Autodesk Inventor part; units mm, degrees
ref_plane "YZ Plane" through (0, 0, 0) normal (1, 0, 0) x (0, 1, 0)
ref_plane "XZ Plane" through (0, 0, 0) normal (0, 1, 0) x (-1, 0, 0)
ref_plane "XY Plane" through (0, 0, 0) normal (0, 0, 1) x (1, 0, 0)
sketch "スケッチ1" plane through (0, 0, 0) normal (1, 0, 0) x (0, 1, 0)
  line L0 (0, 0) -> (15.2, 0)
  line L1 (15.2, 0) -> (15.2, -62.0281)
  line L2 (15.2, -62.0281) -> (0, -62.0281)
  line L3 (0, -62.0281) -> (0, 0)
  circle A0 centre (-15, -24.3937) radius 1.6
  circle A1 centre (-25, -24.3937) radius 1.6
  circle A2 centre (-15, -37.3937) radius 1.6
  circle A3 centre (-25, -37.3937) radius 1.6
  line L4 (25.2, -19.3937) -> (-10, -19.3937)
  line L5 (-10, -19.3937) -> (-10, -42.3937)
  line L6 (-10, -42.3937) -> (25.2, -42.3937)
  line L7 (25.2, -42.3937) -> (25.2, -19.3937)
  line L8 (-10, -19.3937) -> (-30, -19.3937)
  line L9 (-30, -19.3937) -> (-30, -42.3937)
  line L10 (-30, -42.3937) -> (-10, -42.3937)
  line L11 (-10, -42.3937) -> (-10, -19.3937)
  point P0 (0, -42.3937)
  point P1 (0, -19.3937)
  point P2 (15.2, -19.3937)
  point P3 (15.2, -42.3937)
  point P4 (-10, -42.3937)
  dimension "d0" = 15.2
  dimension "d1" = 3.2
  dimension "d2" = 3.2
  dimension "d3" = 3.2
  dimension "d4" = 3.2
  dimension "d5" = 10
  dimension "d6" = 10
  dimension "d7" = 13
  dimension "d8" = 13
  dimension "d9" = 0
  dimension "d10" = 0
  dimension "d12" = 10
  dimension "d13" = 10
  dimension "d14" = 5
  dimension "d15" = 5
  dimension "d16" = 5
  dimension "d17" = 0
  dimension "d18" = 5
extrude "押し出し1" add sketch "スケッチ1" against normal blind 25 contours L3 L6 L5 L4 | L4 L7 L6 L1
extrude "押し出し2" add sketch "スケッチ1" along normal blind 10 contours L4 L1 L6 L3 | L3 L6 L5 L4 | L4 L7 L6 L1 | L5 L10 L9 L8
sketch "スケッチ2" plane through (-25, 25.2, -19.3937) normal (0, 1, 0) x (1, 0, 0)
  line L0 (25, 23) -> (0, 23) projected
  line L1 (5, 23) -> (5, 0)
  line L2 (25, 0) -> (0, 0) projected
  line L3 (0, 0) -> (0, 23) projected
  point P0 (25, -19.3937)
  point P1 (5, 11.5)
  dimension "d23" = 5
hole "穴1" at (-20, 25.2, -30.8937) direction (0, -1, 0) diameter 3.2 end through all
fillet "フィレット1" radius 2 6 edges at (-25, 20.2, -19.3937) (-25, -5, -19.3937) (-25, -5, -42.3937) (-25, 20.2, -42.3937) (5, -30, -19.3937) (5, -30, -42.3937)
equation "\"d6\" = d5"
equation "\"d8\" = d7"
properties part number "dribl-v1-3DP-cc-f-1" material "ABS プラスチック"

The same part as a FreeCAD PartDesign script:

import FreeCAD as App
import Part
import Sketcher

V = App.Vector
Q = App.Units.Quantity


def edges_at(feature, points):
    """Names of the edges that pass closest to the given points."""
    edges = feature.Shape.Edges
    near = lambda p: min(range(len(edges)), key=lambda i: edges[i].distToShape(Part.Vertex(*p))[0])
    return sorted({f"Edge{near(p) + 1}" for p in points})

doc = App.newDocument("Part")
params = doc.addObject("Spreadsheet::Sheet", "Params")
for row, (alias, value) in enumerate([
    ("sketch1_width", "10 mm"),
    ("sketch1_height", "23 mm"),
    ("pad1_length", "25 mm"),
    ("sketch2_diameter", "3.2 mm"),
    ("sketch2_width", "55.2 mm"),
    ("pad2_length", "10 mm"),
    ("sketch3_diameter", "3.2 mm"),
    ("hole_diameter", "3.2 mm"),
    ("fillet_radius", "2 mm"),
], start=1):
    params.set(f"A{row}", alias)
    params.set(f"B{row}", "=" + value)
    params.setAlias(f"B{row}", alias)

body = doc.addObject("PartDesign::Body", "Body")
body.AllowCompound = True

# Sketch on YZ plane
sketch1 = body.newObject("Sketcher::SketchObject", "Sketch")
sketch1.AttachmentSupport = (doc.getObject("YZ_Plane"), [""])
sketch1.MapMode = "FlatFace"
sketch1.addGeometry(Part.LineSegment(V(0, -42, 0), V(0, -19, 0)), False)
sketch1.addGeometry(Part.LineSegment(V(0, -19, 0), V(-10, -19, 0)), False)
sketch1.addGeometry(Part.LineSegment(V(-10, -19, 0), V(-10, -42, 0)), False)
sketch1.addGeometry(Part.LineSegment(V(-10, -42, 0), V(0, -42, 0)), False)
sketch1.addGeometry(Part.LineSegment(V(25, -19, 0), V(15, -19, 0)), False)
sketch1.addGeometry(Part.LineSegment(V(15, -19, 0), V(15, -42, 0)), False)
sketch1.addGeometry(Part.LineSegment(V(15, -42, 0), V(25, -42, 0)), False)
sketch1.addGeometry(Part.LineSegment(V(25, -42, 0), V(25, -19, 0)), False)
sketch1.addConstraint(Sketcher.Constraint("Coincident", 0, 2, 1, 1))
sketch1.addConstraint(Sketcher.Constraint("Coincident", 1, 2, 2, 1))
sketch1.addConstraint(Sketcher.Constraint("Coincident", 2, 2, 3, 1))
sketch1.addConstraint(Sketcher.Constraint("Coincident", 3, 2, 0, 1))
sketch1.addConstraint(Sketcher.Constraint("Coincident", 4, 2, 5, 1))
sketch1.addConstraint(Sketcher.Constraint("Coincident", 5, 2, 6, 1))
sketch1.addConstraint(Sketcher.Constraint("Coincident", 6, 2, 7, 1))
sketch1.addConstraint(Sketcher.Constraint("Coincident", 7, 2, 4, 1))
sketch1.addConstraint(Sketcher.Constraint("Vertical", 0))
sketch1.addConstraint(Sketcher.Constraint("Horizontal", 1))
sketch1.addConstraint(Sketcher.Constraint("Vertical", 2))
sketch1.addConstraint(Sketcher.Constraint("Horizontal", 3))
sketch1.addConstraint(Sketcher.Constraint("Horizontal", 4))
sketch1.addConstraint(Sketcher.Constraint("Vertical", 5))
sketch1.addConstraint(Sketcher.Constraint("Horizontal", 6))
sketch1.addConstraint(Sketcher.Constraint("Vertical", 7))
sketch1.addConstraint(Sketcher.Constraint("PointOnObject", 0, 2, -2))
sketch1.addConstraint(Sketcher.Constraint("Horizontal", 1, 2, 4, 2))
sketch1.addConstraint(Sketcher.Constraint("Horizontal", 3, 2, 5, 2))
sketch1.addConstraint(Sketcher.Constraint("Equal", 3, 4))
sketch1.addConstraint(Sketcher.Constraint("DistanceX", 1, 2, 1, 1, Q("10 mm")))
sketch1.addConstraint(Sketcher.Constraint("DistanceX", -1, 1, 4, 2, Q("15.2 mm")))
sketch1.addConstraint(Sketcher.Constraint("DistanceY", 0, 1, 0, 2, Q("23 mm")))
sketch1.addConstraint(Sketcher.Constraint("DistanceY", 0, 2, -1, 1, Q("19.3937 mm")))
sketch1.setExpression("Constraints[20]", "Params.sketch1_width")
sketch1.setExpression("Constraints[22]", "Params.sketch1_height")
pad1 = body.newObject("PartDesign::Pad", "Pad")
pad1.Profile = sketch1
pad1.setExpression("Length", "Params.pad1_length")
pad1.Reversed = True

# Sketch on YZ plane
sketch2 = body.newObject("Sketcher::SketchObject", "Sketch001")
sketch2.AttachmentSupport = (doc.getObject("YZ_Plane"), [""])
sketch2.MapMode = "FlatFace"
sketch2.addGeometry(Part.LineSegment(V(-30, -19.4, 0), V(-30, -42.4, 0)), False)
sketch2.addGeometry(Part.LineSegment(V(-30, -42.4, 0), V(25.2, -42.4, 0)), False)
sketch2.addGeometry(Part.LineSegment(V(25.2, -42.4, 0), V(25.2, -19.4, 0)), False)
sketch2.addGeometry(Part.LineSegment(V(25.2, -19.4, 0), V(-30, -19.4, 0)), False)
sketch2.addGeometry(Part.Circle(V(-15, -24.4, 0), V(0, 0, 1), 1.6), False)
sketch2.addGeometry(Part.Circle(V(-25, -37.4, 0), V(0, 0, 1), 1.6), False)
sketch2.addGeometry(Part.Circle(V(-15, -37.4, 0), V(0, 0, 1), 1.6), False)
sketch2.addGeometry(Part.Circle(V(-25, -24.4, 0), V(0, 0, 1), 1.6), False)
sketch2.addConstraint(Sketcher.Constraint("Coincident", 0, 2, 1, 1))
sketch2.addConstraint(Sketcher.Constraint("Coincident", 1, 2, 2, 1))
sketch2.addConstraint(Sketcher.Constraint("Coincident", 2, 2, 3, 1))
sketch2.addConstraint(Sketcher.Constraint("Coincident", 3, 2, 0, 1))
sketch2.addConstraint(Sketcher.Constraint("Vertical", 0))
sketch2.addConstraint(Sketcher.Constraint("Horizontal", 1))
sketch2.addConstraint(Sketcher.Constraint("Vertical", 2))
sketch2.addConstraint(Sketcher.Constraint("Horizontal", 3))
sketch2.addConstraint(Sketcher.Constraint("Equal", 4, 5))
sketch2.addConstraint(Sketcher.Constraint("Equal", 5, 6))
sketch2.addConstraint(Sketcher.Constraint("Equal", 6, 7))
sketch2.addConstraint(Sketcher.Constraint("Horizontal", 5, 3, 6, 3))
sketch2.addConstraint(Sketcher.Constraint("Horizontal", 4, 3, 7, 3))
sketch2.addConstraint(Sketcher.Constraint("Vertical", 4, 3, 6, 3))
sketch2.addConstraint(Sketcher.Constraint("Vertical", 5, 3, 7, 3))
sketch2.addConstraint(Sketcher.Constraint("Diameter", 4, Q("3.2 mm")))
sketch2.addConstraint(Sketcher.Constraint("DistanceX", 5, 3, 4, 3, Q("10 mm")))
sketch2.addConstraint(Sketcher.Constraint("DistanceY", 5, 3, 4, 3, Q("13 mm")))
sketch2.addConstraint(Sketcher.Constraint("DistanceX", 0, 2, 5, 3, Q("5 mm")))
sketch2.addConstraint(Sketcher.Constraint("DistanceY", 0, 2, 5, 3, Q("5 mm")))
sketch2.addConstraint(Sketcher.Constraint("DistanceY", 4, 3, 2, 2, Q("5 mm")))
sketch2.addConstraint(Sketcher.Constraint("DistanceX", 1, 1, 1, 2, Q("55.2 mm")))
sketch2.addConstraint(Sketcher.Constraint("DistanceX", 4, 3, -1, 1, Q("15 mm")))
sketch2.addConstraint(Sketcher.Constraint("DistanceY", 4, 3, -1, 1, Q("24.3937 mm")))
sketch2.setExpression("Constraints[15]", "Params.sketch2_diameter")
sketch2.setExpression("Constraints[21]", "Params.sketch2_width")
pad2 = body.newObject("PartDesign::Pad", "Pad001")
pad2.Profile = sketch2
pad2.setExpression("Length", "Params.pad2_length")

# Sketch on XZ plane
sketch3 = body.newObject("Sketcher::SketchObject", "Sketch002")
sketch3.AttachmentSupport = (doc.getObject("XZ_Plane"), [""])
sketch3.MapMode = "FlatFace"
sketch3.AttachmentOffset = App.Placement(V(0, 0, -25.2), App.Rotation())
sketch3.addGeometry(Part.Circle(V(-20, -30.9, 0), V(0, 0, 1), 1.6), False)
sketch3.addConstraint(Sketcher.Constraint("Diameter", 0, Q("3.2 mm")))
sketch3.addConstraint(Sketcher.Constraint("DistanceX", 0, 3, -1, 1, Q("20 mm")))
sketch3.addConstraint(Sketcher.Constraint("DistanceY", 0, 3, -1, 1, Q("30.8937 mm")))
sketch3.setExpression("Constraints[0]", "Params.sketch3_diameter")
doc.recompute()
hole = body.newObject("PartDesign::Hole", "Hole")
hole.Profile = sketch3
hole.ThreadType = "None"
hole.setExpression("Diameter", "Params.hole_diameter")
hole.DepthType = "ThroughAll"
hole.Reversed = True
doc.recompute()

fillet = body.newObject("PartDesign::Fillet", "Fillet")
fillet.Base = (hole, edges_at(hole, [
    (-25, 20.2, -19.394),
    (-25, -5, -19.394),
    (-25, -5, -42.394),
    (-25, 20.2, -42.394),
    (5, -30, -19.394),
    (5, -30, -42.394),
]))
fillet.setExpression("Radius", "Params.fillet_radius")

doc.recompute()
